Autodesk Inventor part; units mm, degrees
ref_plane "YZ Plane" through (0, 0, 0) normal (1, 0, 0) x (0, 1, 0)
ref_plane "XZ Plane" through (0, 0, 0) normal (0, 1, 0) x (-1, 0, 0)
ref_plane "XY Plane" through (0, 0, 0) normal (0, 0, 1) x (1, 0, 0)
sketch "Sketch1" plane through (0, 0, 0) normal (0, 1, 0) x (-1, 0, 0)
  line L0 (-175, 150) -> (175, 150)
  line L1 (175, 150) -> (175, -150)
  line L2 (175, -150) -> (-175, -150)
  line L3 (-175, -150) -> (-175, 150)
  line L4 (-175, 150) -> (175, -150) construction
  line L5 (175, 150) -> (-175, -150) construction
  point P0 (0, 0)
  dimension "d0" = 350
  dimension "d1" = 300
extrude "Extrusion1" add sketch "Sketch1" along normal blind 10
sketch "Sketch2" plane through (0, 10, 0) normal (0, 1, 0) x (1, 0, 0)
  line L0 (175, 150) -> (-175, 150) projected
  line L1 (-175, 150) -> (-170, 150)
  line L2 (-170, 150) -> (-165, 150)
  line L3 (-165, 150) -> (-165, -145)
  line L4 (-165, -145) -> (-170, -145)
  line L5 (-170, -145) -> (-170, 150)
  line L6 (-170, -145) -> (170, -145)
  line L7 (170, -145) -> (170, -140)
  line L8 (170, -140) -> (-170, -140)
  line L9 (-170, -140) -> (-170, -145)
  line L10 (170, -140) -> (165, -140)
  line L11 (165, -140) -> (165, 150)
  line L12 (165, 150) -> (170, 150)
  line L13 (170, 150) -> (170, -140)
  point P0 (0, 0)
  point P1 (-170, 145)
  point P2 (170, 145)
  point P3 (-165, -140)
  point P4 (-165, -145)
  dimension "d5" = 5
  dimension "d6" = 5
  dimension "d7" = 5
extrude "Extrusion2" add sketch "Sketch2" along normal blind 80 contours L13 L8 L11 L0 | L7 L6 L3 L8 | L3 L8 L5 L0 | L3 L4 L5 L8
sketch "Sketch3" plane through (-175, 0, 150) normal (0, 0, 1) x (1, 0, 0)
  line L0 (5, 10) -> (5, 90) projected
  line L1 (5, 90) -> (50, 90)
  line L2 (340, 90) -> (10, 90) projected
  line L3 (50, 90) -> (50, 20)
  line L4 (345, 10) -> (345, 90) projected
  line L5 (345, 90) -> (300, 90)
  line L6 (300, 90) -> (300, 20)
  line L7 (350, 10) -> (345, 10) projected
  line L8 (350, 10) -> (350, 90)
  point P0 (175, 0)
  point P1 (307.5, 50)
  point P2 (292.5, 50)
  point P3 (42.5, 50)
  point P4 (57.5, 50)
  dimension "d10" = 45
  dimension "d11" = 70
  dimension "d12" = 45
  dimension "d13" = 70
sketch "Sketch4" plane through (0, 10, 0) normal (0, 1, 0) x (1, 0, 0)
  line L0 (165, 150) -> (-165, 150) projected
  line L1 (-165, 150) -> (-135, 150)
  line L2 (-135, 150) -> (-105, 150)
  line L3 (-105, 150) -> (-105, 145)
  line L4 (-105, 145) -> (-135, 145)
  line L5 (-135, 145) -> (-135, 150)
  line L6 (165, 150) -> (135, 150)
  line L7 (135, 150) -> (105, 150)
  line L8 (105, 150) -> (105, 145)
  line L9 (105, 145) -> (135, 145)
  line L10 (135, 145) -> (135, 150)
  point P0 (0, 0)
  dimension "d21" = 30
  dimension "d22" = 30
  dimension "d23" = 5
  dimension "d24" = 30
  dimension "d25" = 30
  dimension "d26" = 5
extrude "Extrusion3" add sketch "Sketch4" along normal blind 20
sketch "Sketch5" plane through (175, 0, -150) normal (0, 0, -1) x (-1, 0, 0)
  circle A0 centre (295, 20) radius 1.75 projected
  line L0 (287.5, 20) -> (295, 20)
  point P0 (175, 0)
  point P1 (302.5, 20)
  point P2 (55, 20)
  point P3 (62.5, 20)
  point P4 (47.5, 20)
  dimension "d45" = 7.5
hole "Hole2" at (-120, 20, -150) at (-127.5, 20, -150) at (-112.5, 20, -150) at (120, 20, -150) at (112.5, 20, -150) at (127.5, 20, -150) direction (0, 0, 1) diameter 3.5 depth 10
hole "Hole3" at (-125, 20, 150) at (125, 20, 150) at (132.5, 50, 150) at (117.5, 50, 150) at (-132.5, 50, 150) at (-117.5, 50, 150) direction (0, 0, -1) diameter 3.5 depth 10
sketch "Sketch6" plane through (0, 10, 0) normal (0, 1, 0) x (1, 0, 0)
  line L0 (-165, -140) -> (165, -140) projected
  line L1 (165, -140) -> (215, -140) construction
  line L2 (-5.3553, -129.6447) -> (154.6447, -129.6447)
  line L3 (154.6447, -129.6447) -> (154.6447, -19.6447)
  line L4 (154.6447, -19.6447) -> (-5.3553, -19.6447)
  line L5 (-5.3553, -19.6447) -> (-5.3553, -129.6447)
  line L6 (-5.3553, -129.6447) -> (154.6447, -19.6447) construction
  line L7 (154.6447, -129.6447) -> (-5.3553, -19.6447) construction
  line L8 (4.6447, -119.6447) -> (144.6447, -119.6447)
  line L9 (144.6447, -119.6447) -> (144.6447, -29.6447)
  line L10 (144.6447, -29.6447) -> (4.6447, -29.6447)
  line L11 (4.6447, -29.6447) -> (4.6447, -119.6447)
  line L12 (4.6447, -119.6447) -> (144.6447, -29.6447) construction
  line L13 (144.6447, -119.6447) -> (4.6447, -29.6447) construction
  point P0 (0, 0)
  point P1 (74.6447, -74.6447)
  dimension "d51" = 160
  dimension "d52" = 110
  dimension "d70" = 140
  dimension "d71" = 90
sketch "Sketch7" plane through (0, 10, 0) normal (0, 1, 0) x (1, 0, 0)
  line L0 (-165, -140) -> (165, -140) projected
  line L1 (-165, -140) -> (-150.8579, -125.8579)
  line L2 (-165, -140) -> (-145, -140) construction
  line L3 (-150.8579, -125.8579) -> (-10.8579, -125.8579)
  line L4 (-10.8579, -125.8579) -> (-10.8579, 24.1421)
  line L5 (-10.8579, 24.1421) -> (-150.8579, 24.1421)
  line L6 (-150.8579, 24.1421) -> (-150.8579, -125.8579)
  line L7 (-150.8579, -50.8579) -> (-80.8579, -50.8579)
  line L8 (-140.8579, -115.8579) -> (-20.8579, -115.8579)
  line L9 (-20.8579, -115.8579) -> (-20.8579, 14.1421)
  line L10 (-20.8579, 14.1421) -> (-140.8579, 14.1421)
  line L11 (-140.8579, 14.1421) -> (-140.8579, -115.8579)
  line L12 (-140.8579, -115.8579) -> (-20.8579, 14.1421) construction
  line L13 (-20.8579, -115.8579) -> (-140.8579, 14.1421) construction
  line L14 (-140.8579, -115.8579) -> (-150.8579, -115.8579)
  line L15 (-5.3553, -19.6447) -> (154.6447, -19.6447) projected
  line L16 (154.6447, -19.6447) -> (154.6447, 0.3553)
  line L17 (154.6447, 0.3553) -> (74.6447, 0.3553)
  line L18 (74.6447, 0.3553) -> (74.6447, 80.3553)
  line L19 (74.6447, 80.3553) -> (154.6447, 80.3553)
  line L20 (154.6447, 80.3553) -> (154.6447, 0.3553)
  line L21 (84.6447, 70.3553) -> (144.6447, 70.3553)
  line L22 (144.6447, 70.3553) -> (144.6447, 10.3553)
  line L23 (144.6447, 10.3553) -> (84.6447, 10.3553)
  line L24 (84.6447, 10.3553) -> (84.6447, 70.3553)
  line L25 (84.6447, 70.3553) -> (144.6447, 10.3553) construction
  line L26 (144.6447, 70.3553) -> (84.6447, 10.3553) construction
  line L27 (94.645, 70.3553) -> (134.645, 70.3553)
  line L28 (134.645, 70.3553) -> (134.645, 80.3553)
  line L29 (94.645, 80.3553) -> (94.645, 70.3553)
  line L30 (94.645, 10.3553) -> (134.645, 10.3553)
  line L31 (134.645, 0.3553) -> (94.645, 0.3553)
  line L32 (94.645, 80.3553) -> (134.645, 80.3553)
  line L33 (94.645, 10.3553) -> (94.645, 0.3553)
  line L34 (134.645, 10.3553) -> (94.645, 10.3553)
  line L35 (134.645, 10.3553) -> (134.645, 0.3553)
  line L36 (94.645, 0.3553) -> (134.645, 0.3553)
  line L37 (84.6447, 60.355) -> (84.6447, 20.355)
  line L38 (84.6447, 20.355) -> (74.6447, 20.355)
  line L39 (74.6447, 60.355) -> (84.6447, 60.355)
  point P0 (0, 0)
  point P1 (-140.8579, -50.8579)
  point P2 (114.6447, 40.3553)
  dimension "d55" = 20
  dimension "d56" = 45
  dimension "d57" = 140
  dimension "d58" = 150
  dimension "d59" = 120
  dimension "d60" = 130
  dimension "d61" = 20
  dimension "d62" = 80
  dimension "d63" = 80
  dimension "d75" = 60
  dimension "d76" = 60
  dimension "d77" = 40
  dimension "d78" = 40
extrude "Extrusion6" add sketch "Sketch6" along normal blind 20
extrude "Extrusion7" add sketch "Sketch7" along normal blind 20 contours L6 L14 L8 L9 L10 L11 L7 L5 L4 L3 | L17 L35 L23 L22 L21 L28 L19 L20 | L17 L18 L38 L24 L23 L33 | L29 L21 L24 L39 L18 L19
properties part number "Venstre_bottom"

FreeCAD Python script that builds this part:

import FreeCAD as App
import Part
import Sketcher
from FreeCAD import Vector


def add_polygon(sketch, points):
    """Adds a closed chain of lines whose ends are joined by coincident constraints."""
    first, n = sketch.GeometryCount, len(points)
    for a, b in zip(points, points[1:] + points[:1]):
        sketch.addGeometry(Part.LineSegment(App.Vector(*a, 0), App.Vector(*b, 0)), False)
    for i in range(n):
        sketch.addConstraint(Sketcher.Constraint("Coincident", first + i, 2, first + (i + 1) % n, 1))

doc = App.newDocument("Part")
params = doc.addObject("Spreadsheet::Sheet", "Params")
for row, (alias, value) in enumerate([
    ("sketch1_width", "350 mm"),
    ("sketch1_height", "300 mm"),
    ("pad1_length", "10 mm"),
    ("sketch2_width", "5 mm"),
    ("sketch2_width2", "330 mm"),
    ("sketch2_height", "290 mm"),
    ("pad2_length", "80 mm"),
    ("sketch3_width", "30 mm"),
    ("sketch3_height", "5 mm"),
    ("pad3_length", "20 mm"),
    ("sketch4_diameter", "3.5 mm"),
    ("hole_diameter", "3.5 mm"),
    ("hole_depth", "10 mm"),
    ("sketch5_diameter", "3.5 mm"),
    ("hole2_diameter", "3.5 mm"),
    ("hole2_depth", "10 mm"),
    ("sketch6_width", "160 mm"),
    ("sketch6_width2", "140 mm"),
    ("sketch6_height", "110 mm"),
    ("sketch6_height2", "90 mm"),
    ("pad4_length", "20 mm"),
    ("sketch7_width", "140 mm"),
    ("sketch7_width2", "120 mm"),
    ("sketch7_width3", "130 mm"),
    ("sketch7_height", "150 mm"),
    ("sketch7_height2", "80 mm"),
    ("pad5_length", "20 mm"),
], start=1):
    params.set(f"A{row}", alias)
    params.set(f"B{row}", "=" + value)
    params.setAlias(f"B{row}", alias)

body = doc.addObject("PartDesign::Body", "Body")

sketch1 = doc.addObject("Sketcher::SketchObject", "Sketch")
body.addObject(sketch1)
sketch1.AttachmentSupport = (doc.XZ_Plane, [""])
sketch1.MapMode = "FlatFace"
add_polygon(sketch1, [(-175, 150), (175, 150), (175, -150), (-175, -150)])
sketch1.addConstraint(Sketcher.Constraint("Horizontal", 0))
sketch1.addConstraint(Sketcher.Constraint("Vertical", 1))
sketch1.addConstraint(Sketcher.Constraint("Horizontal", 2))
sketch1.addConstraint(Sketcher.Constraint("Vertical", 3))
sketch1.addConstraint(Sketcher.Constraint("Symmetric", 0, 2, 2, 2, -1, 1))
sketch1.addConstraint(Sketcher.Constraint("DistanceX", 0, 1, 0, 2, 350.0))
sketch1.addConstraint(Sketcher.Constraint("DistanceY", 1, 2, 1, 1, 300.0))
sketch1.setExpression("Constraints[9]", "Params.sketch1_width")
sketch1.setExpression("Constraints[10]", "Params.sketch1_height")
pad1 = doc.addObject("PartDesign::Pad", "Pad")
body.addObject(pad1)
pad1.Profile = sketch1
pad1.setExpression("Length", "Params.pad1_length")
pad1.Reversed = True

sketch2 = doc.addObject("Sketcher::SketchObject", "Sketch001")
body.addObject(sketch2)
sketch2.AttachmentSupport = (doc.XZ_Plane, [""])
sketch2.MapMode = "FlatFace"
sketch2.AttachmentOffset = App.Placement(Vector(0, 0, -10), App.Rotation())
add_polygon(sketch2, [(170, -150), (165, -150), (165, 140), (-165, 140), (-165, -150), (-170, -150), (-170, 145), (170, 145)])
sketch2.addConstraint(Sketcher.Constraint("Horizontal", 0))
sketch2.addConstraint(Sketcher.Constraint("Vertical", 1))
sketch2.addConstraint(Sketcher.Constraint("Horizontal", 2))
sketch2.addConstraint(Sketcher.Constraint("Vertical", 3))
sketch2.addConstraint(Sketcher.Constraint("Horizontal", 4))
sketch2.addConstraint(Sketcher.Constraint("Vertical", 5))
sketch2.addConstraint(Sketcher.Constraint("Horizontal", 6))
sketch2.addConstraint(Sketcher.Constraint("Vertical", 7))
sketch2.addConstraint(Sketcher.Constraint("Symmetric", 0, 2, 3, 2, -2))
sketch2.addConstraint(Sketcher.Constraint("Equal", 0, 4))
sketch2.addConstraint(Sketcher.Constraint("DistanceX", 0, 2, 0, 1, 5.0))
sketch2.addConstraint(Sketcher.Constraint("DistanceY", 2, 2, 5, 2, 5.0))
sketch2.addConstraint(Sketcher.Constraint("DistanceX", 2, 2, 2, 1, 330.0))
sketch2.addConstraint(Sketcher.Constraint("DistanceY", 1, 1, 1, 2, 290.0))
sketch2.addConstraint(Sketcher.Constraint("DistanceY", 0, 2, -1, 1, 150.0))
sketch2.setExpression("Constraints[18]", "Params.sketch2_width")
sketch2.setExpression("Constraints[20]", "Params.sketch2_width2")
sketch2.setExpression("Constraints[21]", "Params.sketch2_height")
pad2 = doc.addObject("PartDesign::Pad", "Pad001")
body.addObject(pad2)
pad2.Profile = sketch2
pad2.setExpression("Length", "Params.pad2_length")
pad2.Reversed = True

sketch3 = doc.addObject("Sketcher::SketchObject", "Sketch002")
body.addObject(sketch3)
sketch3.AttachmentSupport = (doc.XZ_Plane, [""])
sketch3.MapMode = "FlatFace"
sketch3.AttachmentOffset = App.Placement(Vector(0, 0, -10), App.Rotation())
add_polygon(sketch3, [(135, -145), (135, -150), (105, -150), (105, -145)])
add_polygon(sketch3, [(-105, -145), (-105, -150), (-135, -150), (-135, -145)])
sketch3.addConstraint(Sketcher.Constraint("Vertical", 0))
sketch3.addConstraint(Sketcher.Constraint("Horizontal", 1))
sketch3.addConstraint(Sketcher.Constraint("Vertical", 2))
sketch3.addConstraint(Sketcher.Constraint("Horizontal", 3))
sketch3.addConstraint(Sketcher.Constraint("Vertical", 4))
sketch3.addConstraint(Sketcher.Constraint("Horizontal", 5))
sketch3.addConstraint(Sketcher.Constraint("Vertical", 6))
sketch3.addConstraint(Sketcher.Constraint("Horizontal", 7))
sketch3.addConstraint(Sketcher.Constraint("Symmetric", 1, 2, 4, 2, -2))
sketch3.addConstraint(Sketcher.Constraint("Symmetric", 3, 2, 6, 2, -2))
sketch3.addConstraint(Sketcher.Constraint("DistanceX", 1, 2, 1, 1, 30.0))
sketch3.addConstraint(Sketcher.Constraint("DistanceY", 0, 2, 0, 1, 5.0))
sketch3.addConstraint(Sketcher.Constraint("DistanceX", -1, 1, 0, 2, 135.0))
sketch3.addConstraint(Sketcher.Constraint("DistanceY", 0, 2, -1, 1, 150.0))
sketch3.setExpression("Constraints[18]", "Params.sketch3_width")
sketch3.setExpression("Constraints[19]", "Params.sketch3_height")
pad3 = doc.addObject("PartDesign::Pad", "Pad002")
body.addObject(pad3)
pad3.Profile = sketch3
pad3.setExpression("Length", "Params.pad3_length")
pad3.Reversed = True

sketch4 = doc.addObject("Sketcher::SketchObject", "Sketch003")
body.addObject(sketch4)
sketch4.AttachmentSupport = (doc.XY_Plane, [""])
sketch4.MapMode = "FlatFace"
sketch4.AttachmentOffset = App.Placement(Vector(0, 0, -150), App.Rotation())
sketch4.addGeometry(Part.Circle(Vector(-120, 20, 0), Vector(0, 0, 1), 1.8), False)
sketch4.addGeometry(Part.Circle(Vector(-127.5, 20, 0), Vector(0, 0, 1), 1.8), False)
sketch4.addGeometry(Part.Circle(Vector(-112.5, 20, 0), Vector(0, 0, 1), 1.8), False)
sketch4.addGeometry(Part.Circle(Vector(120, 20, 0), Vector(0, 0, 1), 1.8), False)
sketch4.addGeometry(Part.Circle(Vector(112.5, 20, 0), Vector(0, 0, 1), 1.8), False)
sketch4.addGeometry(Part.Circle(Vector(127.5, 20, 0), Vector(0, 0, 1), 1.8), False)
sketch4.addConstraint(Sketcher.Constraint("Equal", 0, 1))
sketch4.addConstraint(Sketcher.Constraint("Equal", 1, 2))
sketch4.addConstraint(Sketcher.Constraint("Equal", 2, 3))
sketch4.addConstraint(Sketcher.Constraint("Equal", 3, 4))
sketch4.addConstraint(Sketcher.Constraint("Equal", 4, 5))
sketch4.addConstraint(Sketcher.Constraint("Symmetric", 0, 3, 3, 3, -2))
sketch4.addConstraint(Sketcher.Constraint("Symmetric", 2, 3, 4, 3, -2))
sketch4.addConstraint(Sketcher.Constraint("Symmetric", 1, 3, 5, 3, -2))
sketch4.addConstraint(Sketcher.Constraint("Horizontal", 0, 3, 1, 3))
sketch4.addConstraint(Sketcher.Constraint("Horizontal", 1, 3, 2, 3))
sketch4.addConstraint(Sketcher.Constraint("Diameter", 0, 3.5))
sketch4.addConstraint(Sketcher.Constraint("DistanceX", 0, 3, -1, 1, 120.0))
sketch4.addConstraint(Sketcher.Constraint("DistanceY", -1, 1, 0, 3, 20.0))
sketch4.addConstraint(Sketcher.Constraint("DistanceX", 1, 3, 2, 3, 15.0))
sketch4.addConstraint(Sketcher.Constraint("DistanceX", 2, 3, 4, 3, 225.0))
sketch4.setExpression("Constraints[10]", "Params.sketch4_diameter")
doc.recompute()
hole = doc.addObject("PartDesign::Hole", "Hole")
body.addObject(hole)
hole.Profile = sketch4
hole.ThreadType = "None"
hole.setExpression("Diameter", "Params.hole_diameter")
hole.DepthType = "Dimension"
hole.setExpression("Depth", "Params.hole_depth")
hole.DrillPoint = "Flat"
hole.Reversed = True

sketch5 = doc.addObject("Sketcher::SketchObject", "Sketch004")
body.addObject(sketch5)
sketch5.AttachmentSupport = (doc.XY_Plane, [""])
sketch5.MapMode = "FlatFace"
sketch5.AttachmentOffset = App.Placement(Vector(0, 0, 150), App.Rotation())
sketch5.addGeometry(Part.Circle(Vector(-125, 20, 0), Vector(0, 0, 1), 1.8), False)
sketch5.addGeometry(Part.Circle(Vector(125, 20, 0), Vector(0, 0, 1), 1.8), False)
sketch5.addGeometry(Part.Circle(Vector(132.5, 50, 0), Vector(0, 0, 1), 1.8), False)
sketch5.addGeometry(Part.Circle(Vector(117.5, 50, 0), Vector(0, 0, 1), 1.8), False)
sketch5.addGeometry(Part.Circle(Vector(-132.5, 50, 0), Vector(0, 0, 1), 1.8), False)
sketch5.addGeometry(Part.Circle(Vector(-117.5, 50, 0), Vector(0, 0, 1), 1.8), False)
sketch5.addConstraint(Sketcher.Constraint("Equal", 0, 1))
sketch5.addConstraint(Sketcher.Constraint("Equal", 1, 2))
sketch5.addConstraint(Sketcher.Constraint("Equal", 2, 3))
sketch5.addConstraint(Sketcher.Constraint("Equal", 3, 4))
sketch5.addConstraint(Sketcher.Constraint("Equal", 4, 5))
sketch5.addConstraint(Sketcher.Constraint("Symmetric", 0, 3, 1, 3, -2))
sketch5.addConstraint(Sketcher.Constraint("Symmetric", 2, 3, 4, 3, -2))
sketch5.addConstraint(Sketcher.Constraint("Symmetric", 3, 3, 5, 3, -2))
sketch5.addConstraint(Sketcher.Constraint("Horizontal", 2, 3, 3, 3))
sketch5.addConstraint(Sketcher.Constraint("Diameter", 0, 3.5))
sketch5.addConstraint(Sketcher.Constraint("DistanceX", 0, 3, -1, 1, 125.0))
sketch5.addConstraint(Sketcher.Constraint("DistanceY", -1, 1, 0, 3, 20.0))
sketch5.addConstraint(Sketcher.Constraint("DistanceY", -1, 1, 2, 3, 50.0))
sketch5.addConstraint(Sketcher.Constraint("DistanceX", 3, 3, 2, 3, 15.0))
sketch5.addConstraint(Sketcher.Constraint("DistanceX", 4, 3, 3, 3, 250.0))
sketch5.setExpression("Constraints[9]", "Params.sketch5_diameter")
doc.recompute()
hole2 = doc.addObject("PartDesign::Hole", "Hole001")
body.addObject(hole2)
hole2.Profile = sketch5
hole2.ThreadType = "None"
hole2.setExpression("Diameter", "Params.hole2_diameter")
hole2.DepthType = "Dimension"
hole2.setExpression("Depth", "Params.hole2_depth")
hole2.DrillPoint = "Flat"

sketch6 = doc.addObject("Sketcher::SketchObject", "Sketch005")
body.addObject(sketch6)
sketch6.AttachmentSupport = (doc.XZ_Plane, [""])
sketch6.MapMode = "FlatFace"
sketch6.AttachmentOffset = App.Placement(Vector(0, 0, -10), App.Rotation())
add_polygon(sketch6, [(-5, 20), (-5, 130), (155, 130), (155, 20)])
add_polygon(sketch6, [(145, 120), (5, 120), (5, 30), (145, 30)])
sketch6.addConstraint(Sketcher.Constraint("Vertical", 0))
sketch6.addConstraint(Sketcher.Constraint("Horizontal", 1))
sketch6.addConstraint(Sketcher.Constraint("Vertical", 2))
sketch6.addConstraint(Sketcher.Constraint("Horizontal", 3))
sketch6.addConstraint(Sketcher.Constraint("Horizontal", 4))
sketch6.addConstraint(Sketcher.Constraint("Vertical", 5))
sketch6.addConstraint(Sketcher.Constraint("Horizontal", 6))
sketch6.addConstraint(Sketcher.Constraint("Vertical", 7))
sketch6.addConstraint(Sketcher.Constraint("DistanceX", 1, 1, 1, 2, 160.0))
sketch6.addConstraint(Sketcher.Constraint("DistanceX", 4, 2, 4, 1, 140.0))
sketch6.addConstraint(Sketcher.Constraint("DistanceY", 0, 1, 0, 2, 110.0))
sketch6.addConstraint(Sketcher.Constraint("DistanceY", 5, 2, 5, 1, 90.0))
sketch6.addConstraint(Sketcher.Constraint("DistanceX", 0, 2, 4, 2, 10.0))
sketch6.addConstraint(Sketcher.Constraint("DistanceY", 4, 2, 0, 2, 10.0))
sketch6.addConstraint(Sketcher.Constraint("DistanceX", 0, 2, -1, 1, 5.3553))
sketch6.addConstraint(Sketcher.Constraint("DistanceY", -1, 1, 0, 2, 129.6447))
sketch6.setExpression("Constraints[16]", "Params.sketch6_width")
sketch6.setExpression("Constraints[17]", "Params.sketch6_width2")
sketch6.setExpression("Constraints[18]", "Params.sketch6_height")
sketch6.setExpression("Constraints[19]", "Params.sketch6_height2")
pad4 = doc.addObject("PartDesign::Pad", "Pad003")
body.addObject(pad4)
pad4.Profile = sketch6
pad4.setExpression("Length", "Params.pad4_length")
pad4.Reversed = True

sketch7 = doc.addObject("Sketcher::SketchObject", "Sketch006")
body.addObject(sketch7)
sketch7.AttachmentSupport = (doc.XZ_Plane, [""])
sketch7.MapMode = "FlatFace"
sketch7.AttachmentOffset = App.Placement(Vector(0, 0, -10), App.Rotation())
add_polygon(sketch7, [(-151, 116), (-151, 126), (-11, 126), (-11, -24), (-151, -24), (-151, 51), (-141, 51), (-141, -14), (-21, -14), (-21, 116)])
add_polygon(sketch7, [(135, 0), (155, 0), (155, -80), (135, -80), (135, -70), (145, -70), (145, -10), (135, -10)])
add_polygon(sketch7, [(75, 0), (95, 0), (95, -10), (85, -10), (85, -20), (75, -20)])
add_polygon(sketch7, [(95, -70), (95, -80), (75, -80), (75, -60), (85, -60), (85, -70)])
sketch7.addConstraint(Sketcher.Constraint("Vertical", 0))
sketch7.addConstraint(Sketcher.Constraint("Horizontal", 1))
sketch7.addConstraint(Sketcher.Constraint("Vertical", 2))
sketch7.addConstraint(Sketcher.Constraint("Horizontal", 3))
sketch7.addConstraint(Sketcher.Constraint("Vertical", 4))
sketch7.addConstraint(Sketcher.Constraint("Horizontal", 5))
sketch7.addConstraint(Sketcher.Constraint("Vertical", 6))
sketch7.addConstraint(Sketcher.Constraint("Horizontal", 7))
sketch7.addConstraint(Sketcher.Constraint("Vertical", 8))
sketch7.addConstraint(Sketcher.Constraint("Horizontal", 9))
sketch7.addConstraint(Sketcher.Constraint("Horizontal", 10))
sketch7.addConstraint(Sketcher.Constraint("Vertical", 11))
sketch7.addConstraint(Sketcher.Constraint("Horizontal", 12))
sketch7.addConstraint(Sketcher.Constraint("Vertical", 13))
sketch7.addConstraint(Sketcher.Constraint("Horizontal", 14))
sketch7.addConstraint(Sketcher.Constraint("Vertical", 15))
sketch7.addConstraint(Sketcher.Constraint("Horizontal", 16))
sketch7.addConstraint(Sketcher.Constraint("Vertical", 17))
sketch7.addConstraint(Sketcher.Constraint("Horizontal", 18))
sketch7.addConstraint(Sketcher.Constraint("Vertical", 19))
sketch7.addConstraint(Sketcher.Constraint("Horizontal", 20))
sketch7.addConstraint(Sketcher.Constraint("Vertical", 21))
sketch7.addConstraint(Sketcher.Constraint("Horizontal", 22))
sketch7.addConstraint(Sketcher.Constraint("Vertical", 23))
sketch7.addConstraint(Sketcher.Constraint("Vertical", 24))
sketch7.addConstraint(Sketcher.Constraint("Horizontal", 25))
sketch7.addConstraint(Sketcher.Constraint("Vertical", 26))
sketch7.addConstraint(Sketcher.Constraint("Horizontal", 27))
sketch7.addConstraint(Sketcher.Constraint("Vertical", 28))
sketch7.addConstraint(Sketcher.Constraint("Horizontal", 29))
sketch7.addConstraint(Sketcher.Constraint("Horizontal", 17, 2, 18, 2))
sketch7.addConstraint(Sketcher.Constraint("Horizontal", 16, 2, 19, 2))
sketch7.addConstraint(Sketcher.Constraint("Horizontal", 12, 2, 24, 2))
sketch7.addConstraint(Sketcher.Constraint("Horizontal", 14, 2, 28, 2))
sketch7.addConstraint(Sketcher.Constraint("Vertical", 0, 2, 3, 2))
sketch7.addConstraint(Sketcher.Constraint("Vertical", 13, 2, 16, 2))
sketch7.addConstraint(Sketcher.Constraint("Vertical", 19, 2, 24, 2))
sketch7.addConstraint(Sketcher.Constraint("Vertical", 23, 2, 25, 2))
sketch7.addConstraint(Sketcher.Constraint("Vertical", 21, 2, 27, 2))
sketch7.addConstraint(Sketcher.Constraint("Equal", 5, 22))
sketch7.addConstraint(Sketcher.Constraint("Equal", 27, 0))
sketch7.addConstraint(Sketcher.Constraint("Equal", 9, 8))
sketch7.addConstraint(Sketcher.Constraint("Equal", 0, 13))
sketch7.addConstraint(Sketcher.Constraint("Equal", 13, 17))
sketch7.addConstraint(Sketcher.Constraint("Equal", 16, 21))
sketch7.addConstraint(Sketcher.Constraint("Equal", 12, 23))
sketch7.addConstraint(Sketcher.Constraint("Equal", 25, 26))
sketch7.addConstraint(Sketcher.Constraint("DistanceX", 1, 1, 1, 2, 140.0))
sketch7.addConstraint(Sketcher.Constraint("DistanceX", 7, 1, 7, 2, 120.0))
sketch7.addConstraint(Sketcher.Constraint("DistanceX", 9, 2, 9, 1, 130.0))
sketch7.addConstraint(Sketcher.Constraint("DistanceY", 2, 2, 2, 1, 150.0))
sketch7.addConstraint(Sketcher.Constraint("DistanceY", 11, 2, 11, 1, 80.0))
sketch7.addConstraint(Sketcher.Constraint("DistanceX", 18, 2, 17, 2, 40.0))
sketch7.addConstraint(Sketcher.Constraint("DistanceX", 20, 2, 15, 2, 60.0))
sketch7.addConstraint(Sketcher.Constraint("DistanceY", 4, 1, 4, 2, 75.0))
sketch7.addConstraint(Sketcher.Constraint("DistanceX", 10, 1, 10, 2, 19.9997))
sketch7.addConstraint(Sketcher.Constraint("DistanceX", 0, 2, -1, 1, 150.858))
sketch7.addConstraint(Sketcher.Constraint("DistanceY", -1, 1, 0, 2, 125.858))
sketch7.addConstraint(Sketcher.Constraint("DistanceX", -1, 1, 12, 2, 134.645))
sketch7.addConstraint(Sketcher.Constraint("DistanceY", 21, 2, -1, 1, 20.355))
sketch7.setExpression("Constraints[77]", "Params.sketch7_width")
sketch7.setExpression("Constraints[78]", "Params.sketch7_width2")
sketch7.setExpression("Constraints[79]", "Params.sketch7_width3")
sketch7.setExpression("Constraints[80]", "Params.sketch7_height")
sketch7.setExpression("Constraints[81]", "Params.sketch7_height2")
pad5 = doc.addObject("PartDesign::Pad", "Pad004")
body.addObject(pad5)
pad5.Profile = sketch7
pad5.setExpression("Length", "Params.pad5_length")
pad5.Reversed = True

doc.recompute()
